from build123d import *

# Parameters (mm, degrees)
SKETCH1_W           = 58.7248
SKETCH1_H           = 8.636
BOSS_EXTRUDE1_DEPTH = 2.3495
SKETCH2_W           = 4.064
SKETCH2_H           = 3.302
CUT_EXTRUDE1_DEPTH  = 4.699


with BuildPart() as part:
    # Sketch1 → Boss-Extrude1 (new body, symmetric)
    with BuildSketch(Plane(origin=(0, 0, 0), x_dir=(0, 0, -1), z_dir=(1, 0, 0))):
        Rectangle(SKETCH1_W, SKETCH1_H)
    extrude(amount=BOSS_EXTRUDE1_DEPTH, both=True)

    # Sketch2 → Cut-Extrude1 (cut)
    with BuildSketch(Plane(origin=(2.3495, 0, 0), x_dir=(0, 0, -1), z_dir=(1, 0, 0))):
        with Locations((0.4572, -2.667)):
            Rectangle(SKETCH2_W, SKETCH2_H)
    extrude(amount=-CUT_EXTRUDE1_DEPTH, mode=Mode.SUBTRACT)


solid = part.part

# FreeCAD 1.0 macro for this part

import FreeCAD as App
import Part
import Sketcher
Q = App.Units.Quantity

doc = App.newDocument("Part")
body = doc.addObject("PartDesign::Body", "Body")

sketch1 = body.newObject("Sketcher::SketchObject", "Sketch")
sketch1.AttachmentSupport = (doc.getObject("YZ_Plane"), [""])
sketch1.MapMode = "FlatFace"
sketch1.addGeometry(Part.LineSegment(App.Vector(4, 29, 0), App.Vector(-4, 29, 0)), False)
sketch1.addGeometry(Part.LineSegment(App.Vector(-4, 29, 0), App.Vector(-4, -29, 0)), False)
sketch1.addGeometry(Part.LineSegment(App.Vector(-4, -29, 0), App.Vector(4, -29, 0)), False)
sketch1.addGeometry(Part.LineSegment(App.Vector(4, -29, 0), App.Vector(4, 29, 0)), False)
sketch1.addConstraint(Sketcher.Constraint("Coincident", 0, 2, 1, 1))
sketch1.addConstraint(Sketcher.Constraint("Coincident", 1, 2, 2, 1))
sketch1.addConstraint(Sketcher.Constraint("Coincident", 2, 2, 3, 1))
sketch1.addConstraint(Sketcher.Constraint("Coincident", 3, 2, 0, 1))
sketch1.addConstraint(Sketcher.Constraint("Horizontal", 0))
sketch1.addConstraint(Sketcher.Constraint("Vertical", 1))
sketch1.addConstraint(Sketcher.Constraint("Horizontal", 2))
sketch1.addConstraint(Sketcher.Constraint("Vertical", 3))
sketch1.addConstraint(Sketcher.Constraint("Symmetric", 0, 2, 2, 2, -1, 1))
sketch1.addConstraint(Sketcher.Constraint("DistanceX", 0, 2, 0, 1, Q("0.34 in")))
sketch1.addConstraint(Sketcher.Constraint("DistanceY", 1, 2, 1, 1, Q("2.312 in")))
pad1 = body.newObject("PartDesign::Pad", "Pad")
pad1.Profile = sketch1
pad1.Length = Q("0.185 in")
pad1.Midplane = True

sketch2 = body.newObject("Sketcher::SketchObject", "Sketch001")
sketch2.AttachmentSupport = (doc.getObject("YZ_Plane"), [""])
sketch2.MapMode = "FlatFace"
sketch2.AttachmentOffset = App.Placement(App.Vector(0, 0, 0.0925 * 25.4), App.Rotation())
sketch2.addGeometry(Part.LineSegment(App.Vector(-1, 1.6, 0), App.Vector(-4.3, 1.6, 0)), False)
sketch2.addGeometry(Part.LineSegment(App.Vector(-4.3, 1.6, 0), App.Vector(-4.3, -2.5, 0)), False)
sketch2.addGeometry(Part.LineSegment(App.Vector(-4.3, -2.5, 0), App.Vector(-1, -2.5, 0)), False)
sketch2.addGeometry(Part.LineSegment(App.Vector(-1, -2.5, 0), App.Vector(-1, 1.6, 0)), False)
sketch2.addConstraint(Sketcher.Constraint("Coincident", 0, 2, 1, 1))
sketch2.addConstraint(Sketcher.Constraint("Coincident", 1, 2, 2, 1))
sketch2.addConstraint(Sketcher.Constraint("Coincident", 2, 2, 3, 1))
sketch2.addConstraint(Sketcher.Constraint("Coincident", 3, 2, 0, 1))
sketch2.addConstraint(Sketcher.Constraint("Horizontal", 0))
sketch2.addConstraint(Sketcher.Constraint("Vertical", 1))
sketch2.addConstraint(Sketcher.Constraint("Horizontal", 2))
sketch2.addConstraint(Sketcher.Constraint("Vertical", 3))
sketch2.addConstraint(Sketcher.Constraint("DistanceX", 0, 2, 0, 1, Q("0.13 in")))
sketch2.addConstraint(Sketcher.Constraint("DistanceY", 1, 2, 1, 1, Q("0.16 in")))
sketch2.addConstraint(Sketcher.Constraint("DistanceX", 0, 2, -1, 1, Q("0.17 in")))
sketch2.addConstraint(Sketcher.Constraint("DistanceY", -1, 1, 0, 2, Q("0.062 in")))
pocket1 = body.newObject("PartDesign::Pocket", "Pocket")
pocket1.Profile = sketch2
pocket1.Length = Q("0.185 in")

doc.recompute()
